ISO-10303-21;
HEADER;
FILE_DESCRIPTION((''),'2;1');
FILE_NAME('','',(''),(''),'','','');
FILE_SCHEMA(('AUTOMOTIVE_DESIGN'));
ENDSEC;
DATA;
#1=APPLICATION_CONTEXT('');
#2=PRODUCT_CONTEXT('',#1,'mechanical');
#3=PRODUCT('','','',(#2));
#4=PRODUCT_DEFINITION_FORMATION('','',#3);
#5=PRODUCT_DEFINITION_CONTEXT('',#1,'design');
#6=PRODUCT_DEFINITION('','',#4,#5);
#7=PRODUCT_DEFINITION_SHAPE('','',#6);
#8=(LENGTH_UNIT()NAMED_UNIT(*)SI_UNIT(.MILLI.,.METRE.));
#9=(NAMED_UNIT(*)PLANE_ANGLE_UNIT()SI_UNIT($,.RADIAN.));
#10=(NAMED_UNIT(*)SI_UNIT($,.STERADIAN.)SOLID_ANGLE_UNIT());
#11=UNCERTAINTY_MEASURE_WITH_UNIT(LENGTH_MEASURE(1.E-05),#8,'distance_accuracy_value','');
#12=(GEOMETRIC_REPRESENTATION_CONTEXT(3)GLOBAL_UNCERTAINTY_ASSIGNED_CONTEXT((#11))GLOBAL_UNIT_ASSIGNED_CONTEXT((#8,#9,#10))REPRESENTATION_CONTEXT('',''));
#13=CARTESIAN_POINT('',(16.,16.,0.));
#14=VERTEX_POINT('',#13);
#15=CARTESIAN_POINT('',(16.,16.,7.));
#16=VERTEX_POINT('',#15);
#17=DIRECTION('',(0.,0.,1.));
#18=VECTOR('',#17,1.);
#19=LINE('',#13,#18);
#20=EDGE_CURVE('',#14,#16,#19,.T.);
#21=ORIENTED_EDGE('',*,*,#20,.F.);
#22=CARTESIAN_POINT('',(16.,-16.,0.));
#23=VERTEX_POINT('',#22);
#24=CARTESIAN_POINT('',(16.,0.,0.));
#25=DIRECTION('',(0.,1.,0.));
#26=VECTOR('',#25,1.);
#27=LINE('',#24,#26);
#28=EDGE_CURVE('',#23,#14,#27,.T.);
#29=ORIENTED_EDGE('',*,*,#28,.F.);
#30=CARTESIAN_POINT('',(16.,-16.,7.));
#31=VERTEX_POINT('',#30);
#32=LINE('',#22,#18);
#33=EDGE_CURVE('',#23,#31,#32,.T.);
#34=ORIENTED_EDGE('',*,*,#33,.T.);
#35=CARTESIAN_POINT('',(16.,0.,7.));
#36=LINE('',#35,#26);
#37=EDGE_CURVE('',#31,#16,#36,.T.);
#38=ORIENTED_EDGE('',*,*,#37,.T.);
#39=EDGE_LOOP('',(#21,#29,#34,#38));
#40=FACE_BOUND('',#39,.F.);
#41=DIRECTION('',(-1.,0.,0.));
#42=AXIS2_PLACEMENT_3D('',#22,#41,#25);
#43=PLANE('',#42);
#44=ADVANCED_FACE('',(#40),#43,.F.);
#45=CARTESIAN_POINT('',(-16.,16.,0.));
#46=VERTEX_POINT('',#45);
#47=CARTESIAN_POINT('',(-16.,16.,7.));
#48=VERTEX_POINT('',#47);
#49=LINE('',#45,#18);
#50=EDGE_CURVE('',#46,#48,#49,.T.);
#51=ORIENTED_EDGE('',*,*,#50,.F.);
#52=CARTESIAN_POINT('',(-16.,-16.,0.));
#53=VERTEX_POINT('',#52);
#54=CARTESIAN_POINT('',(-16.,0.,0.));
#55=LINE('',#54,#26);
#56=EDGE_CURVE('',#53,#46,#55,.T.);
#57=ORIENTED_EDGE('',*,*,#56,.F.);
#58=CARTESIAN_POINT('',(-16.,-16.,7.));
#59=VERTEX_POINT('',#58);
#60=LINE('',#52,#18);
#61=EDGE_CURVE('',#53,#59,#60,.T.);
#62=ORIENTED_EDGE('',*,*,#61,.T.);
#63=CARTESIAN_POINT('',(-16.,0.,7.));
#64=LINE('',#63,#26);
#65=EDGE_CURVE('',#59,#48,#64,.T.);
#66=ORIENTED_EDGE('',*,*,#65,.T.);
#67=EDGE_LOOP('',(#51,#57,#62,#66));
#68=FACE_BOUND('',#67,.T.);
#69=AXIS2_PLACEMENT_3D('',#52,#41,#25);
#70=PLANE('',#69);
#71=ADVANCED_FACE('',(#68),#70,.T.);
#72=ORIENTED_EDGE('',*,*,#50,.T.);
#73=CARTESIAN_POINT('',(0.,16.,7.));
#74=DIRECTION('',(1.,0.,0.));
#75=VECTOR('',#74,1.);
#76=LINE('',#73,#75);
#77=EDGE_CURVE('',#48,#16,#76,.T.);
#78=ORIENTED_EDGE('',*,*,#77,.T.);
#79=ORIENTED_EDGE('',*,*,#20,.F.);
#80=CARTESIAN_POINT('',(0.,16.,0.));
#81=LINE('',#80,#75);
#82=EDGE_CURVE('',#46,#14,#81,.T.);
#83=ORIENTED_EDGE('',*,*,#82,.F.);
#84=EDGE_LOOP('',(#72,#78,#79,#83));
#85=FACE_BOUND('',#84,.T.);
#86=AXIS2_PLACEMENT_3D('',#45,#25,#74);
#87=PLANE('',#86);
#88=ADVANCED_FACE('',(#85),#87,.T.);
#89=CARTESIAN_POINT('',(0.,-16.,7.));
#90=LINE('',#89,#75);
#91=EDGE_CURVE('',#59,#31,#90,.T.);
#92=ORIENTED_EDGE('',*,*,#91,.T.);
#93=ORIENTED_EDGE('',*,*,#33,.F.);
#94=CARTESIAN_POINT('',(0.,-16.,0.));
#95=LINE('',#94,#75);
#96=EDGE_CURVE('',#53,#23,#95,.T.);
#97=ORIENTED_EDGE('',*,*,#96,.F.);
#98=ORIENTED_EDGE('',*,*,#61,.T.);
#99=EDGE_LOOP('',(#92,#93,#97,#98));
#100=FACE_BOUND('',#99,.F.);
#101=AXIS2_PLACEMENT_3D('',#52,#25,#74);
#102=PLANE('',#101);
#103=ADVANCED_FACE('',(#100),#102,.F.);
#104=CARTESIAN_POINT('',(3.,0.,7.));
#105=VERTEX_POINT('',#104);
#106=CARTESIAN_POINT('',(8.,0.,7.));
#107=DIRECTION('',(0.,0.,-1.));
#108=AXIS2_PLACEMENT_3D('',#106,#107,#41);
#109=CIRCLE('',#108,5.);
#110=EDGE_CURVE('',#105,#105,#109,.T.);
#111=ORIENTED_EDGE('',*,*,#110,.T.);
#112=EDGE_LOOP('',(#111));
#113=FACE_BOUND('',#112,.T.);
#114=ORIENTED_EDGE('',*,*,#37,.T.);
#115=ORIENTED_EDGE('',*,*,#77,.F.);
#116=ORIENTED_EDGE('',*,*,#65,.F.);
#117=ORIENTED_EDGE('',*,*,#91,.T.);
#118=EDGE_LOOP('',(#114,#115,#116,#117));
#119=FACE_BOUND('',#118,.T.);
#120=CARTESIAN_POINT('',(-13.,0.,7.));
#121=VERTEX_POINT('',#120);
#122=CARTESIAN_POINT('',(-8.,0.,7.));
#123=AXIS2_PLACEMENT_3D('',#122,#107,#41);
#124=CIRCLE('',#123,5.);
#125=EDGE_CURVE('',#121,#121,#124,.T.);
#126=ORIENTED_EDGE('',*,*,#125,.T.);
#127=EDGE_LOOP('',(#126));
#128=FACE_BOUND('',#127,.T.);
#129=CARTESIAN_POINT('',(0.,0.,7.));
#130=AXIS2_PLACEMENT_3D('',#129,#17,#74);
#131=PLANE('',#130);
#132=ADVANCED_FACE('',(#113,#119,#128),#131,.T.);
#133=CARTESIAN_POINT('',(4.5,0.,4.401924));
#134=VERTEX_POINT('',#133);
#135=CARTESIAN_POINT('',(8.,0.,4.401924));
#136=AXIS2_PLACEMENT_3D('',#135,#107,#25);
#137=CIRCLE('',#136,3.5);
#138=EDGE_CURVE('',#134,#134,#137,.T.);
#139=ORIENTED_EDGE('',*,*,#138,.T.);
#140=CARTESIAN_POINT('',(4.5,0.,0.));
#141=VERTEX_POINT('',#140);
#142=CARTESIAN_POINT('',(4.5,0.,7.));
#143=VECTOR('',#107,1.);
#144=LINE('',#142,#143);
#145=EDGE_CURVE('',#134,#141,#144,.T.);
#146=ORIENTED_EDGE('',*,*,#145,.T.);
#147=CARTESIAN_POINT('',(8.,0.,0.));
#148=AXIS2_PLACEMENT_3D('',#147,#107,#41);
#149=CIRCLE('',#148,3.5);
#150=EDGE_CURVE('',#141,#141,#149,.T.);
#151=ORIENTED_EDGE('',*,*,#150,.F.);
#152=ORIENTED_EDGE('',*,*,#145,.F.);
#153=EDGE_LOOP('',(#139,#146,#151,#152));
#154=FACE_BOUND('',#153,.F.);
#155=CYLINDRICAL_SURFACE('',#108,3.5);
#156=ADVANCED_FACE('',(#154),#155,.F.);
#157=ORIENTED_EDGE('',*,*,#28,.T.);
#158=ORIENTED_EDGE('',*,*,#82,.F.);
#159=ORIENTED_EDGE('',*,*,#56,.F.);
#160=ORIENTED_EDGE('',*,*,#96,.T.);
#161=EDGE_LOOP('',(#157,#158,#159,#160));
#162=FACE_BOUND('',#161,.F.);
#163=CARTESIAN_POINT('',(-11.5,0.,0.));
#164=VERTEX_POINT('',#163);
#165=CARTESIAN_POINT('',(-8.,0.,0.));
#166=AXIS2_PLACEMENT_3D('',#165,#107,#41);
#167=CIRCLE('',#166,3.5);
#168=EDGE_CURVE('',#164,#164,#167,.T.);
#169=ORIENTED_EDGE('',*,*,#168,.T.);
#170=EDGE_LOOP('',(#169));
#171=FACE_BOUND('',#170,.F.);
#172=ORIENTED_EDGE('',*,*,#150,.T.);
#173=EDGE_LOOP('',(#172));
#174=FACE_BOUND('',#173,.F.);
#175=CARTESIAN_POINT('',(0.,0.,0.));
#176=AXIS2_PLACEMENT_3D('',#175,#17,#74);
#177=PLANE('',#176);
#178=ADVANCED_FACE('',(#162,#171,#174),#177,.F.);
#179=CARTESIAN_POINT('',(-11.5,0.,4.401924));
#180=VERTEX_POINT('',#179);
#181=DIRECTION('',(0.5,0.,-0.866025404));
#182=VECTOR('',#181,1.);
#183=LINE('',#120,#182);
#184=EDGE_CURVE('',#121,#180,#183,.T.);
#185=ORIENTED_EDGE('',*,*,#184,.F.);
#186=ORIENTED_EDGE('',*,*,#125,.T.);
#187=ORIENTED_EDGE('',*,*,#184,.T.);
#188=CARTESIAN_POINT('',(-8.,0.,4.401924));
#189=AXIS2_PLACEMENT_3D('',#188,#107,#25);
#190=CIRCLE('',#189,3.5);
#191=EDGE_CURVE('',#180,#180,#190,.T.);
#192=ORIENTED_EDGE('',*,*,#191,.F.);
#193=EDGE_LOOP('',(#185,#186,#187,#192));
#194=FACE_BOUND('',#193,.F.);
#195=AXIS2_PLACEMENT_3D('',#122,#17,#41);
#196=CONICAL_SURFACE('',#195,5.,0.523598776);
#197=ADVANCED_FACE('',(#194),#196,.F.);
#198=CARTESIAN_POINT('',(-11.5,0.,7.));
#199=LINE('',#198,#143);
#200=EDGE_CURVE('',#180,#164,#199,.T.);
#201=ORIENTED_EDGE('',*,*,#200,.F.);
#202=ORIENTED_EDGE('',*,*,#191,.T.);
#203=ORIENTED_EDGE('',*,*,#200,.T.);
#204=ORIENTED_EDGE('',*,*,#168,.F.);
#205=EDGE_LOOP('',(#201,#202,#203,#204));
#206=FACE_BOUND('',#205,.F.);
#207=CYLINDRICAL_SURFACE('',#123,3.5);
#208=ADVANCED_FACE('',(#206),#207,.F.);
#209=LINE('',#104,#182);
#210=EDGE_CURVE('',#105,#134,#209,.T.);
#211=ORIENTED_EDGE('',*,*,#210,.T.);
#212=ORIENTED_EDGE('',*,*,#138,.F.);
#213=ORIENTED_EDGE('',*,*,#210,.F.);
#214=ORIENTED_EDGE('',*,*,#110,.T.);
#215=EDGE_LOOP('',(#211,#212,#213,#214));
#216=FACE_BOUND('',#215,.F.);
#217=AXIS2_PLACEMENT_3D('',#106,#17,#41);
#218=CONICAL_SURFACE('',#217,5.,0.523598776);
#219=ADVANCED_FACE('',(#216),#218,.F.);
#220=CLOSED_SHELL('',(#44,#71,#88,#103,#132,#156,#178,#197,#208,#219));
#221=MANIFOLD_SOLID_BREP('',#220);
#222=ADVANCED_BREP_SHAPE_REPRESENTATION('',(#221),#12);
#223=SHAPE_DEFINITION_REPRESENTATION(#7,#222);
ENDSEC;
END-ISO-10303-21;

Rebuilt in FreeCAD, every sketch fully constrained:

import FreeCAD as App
import Part
import Sketcher


def add_polygon(sketch, points):
    """Adds a closed chain of lines whose ends are joined by coincident constraints."""
    first, n = sketch.GeometryCount, len(points)
    for a, b in zip(points, points[1:] + points[:1]):
        sketch.addGeometry(Part.LineSegment(App.Vector(*a, 0), App.Vector(*b, 0)), False)
    for i in range(n):
        sketch.addConstraint(Sketcher.Constraint("Coincident", first + i, 2, first + (i + 1) % n, 1))

doc = App.newDocument("Part")
body = doc.addObject("PartDesign::Body", "Body")

# Sketch on XY plane
sketch1 = body.newObject("Sketcher::SketchObject", "Sketch")
sketch1.AttachmentSupport = (doc.getObject("XY_Plane"), [""])
sketch1.MapMode = "FlatFace"
add_polygon(sketch1, [(-16, 16), (-16, -16), (16, -16), (16, 16)])  # lines 0-3
sketch1.addConstraint(Sketcher.Constraint("Vertical", 0))
sketch1.addConstraint(Sketcher.Constraint("Horizontal", 1))
sketch1.addConstraint(Sketcher.Constraint("Vertical", 2))
sketch1.addConstraint(Sketcher.Constraint("Horizontal", 3))
sketch1.addConstraint(Sketcher.Constraint("Symmetric", 0, 2, 2, 2, -1, 1))
sketch1.addConstraint(Sketcher.Constraint("Equal", 3, 0))
sketch1.addConstraint(Sketcher.Constraint("DistanceX", 1, 1, 1, 2, 32.0))
pad1 = body.newObject("PartDesign::Pad", "Pad")
pad1.Profile = sketch1
pad1.Length = 7

# Sketch on XY plane
sketch2 = body.newObject("Sketcher::SketchObject", "Sketch001")
sketch2.AttachmentSupport = (doc.getObject("XY_Plane"), [""])
sketch2.MapMode = "FlatFace"
sketch2.AttachmentOffset = App.Placement(App.Vector(0, 0, 7), App.Rotation())
sketch2.addGeometry(Part.Circle(App.Vector(-8, 0, 0), App.Vector(0, 0, 1), 3.5), False)
sketch2.addGeometry(Part.Circle(App.Vector(8, 0, 0), App.Vector(0, 0, 1), 3.5), False)
sketch2.addConstraint(Sketcher.Constraint("Equal", 0, 1))
sketch2.addConstraint(Sketcher.Constraint("Symmetric", 0, 3, 1, 3, -1, 1))
sketch2.addConstraint(Sketcher.Constraint("PointOnObject", 0, 3, -1))
sketch2.addConstraint(Sketcher.Constraint("Diameter", 0, 7.0))
sketch2.addConstraint(Sketcher.Constraint("DistanceX", 0, 3, -1, 1, 8.0))
doc.recompute()
hole = body.newObject("PartDesign::Hole", "Hole")
hole.Profile = sketch2
hole.ThreadType = "None"
hole.Diameter = 7
hole.DepthType = "ThroughAll"
hole.HoleCutType = "Countersink"
hole.HoleCutDiameter = 10
hole.HoleCutCountersinkAngle = 60

doc.recompute()
